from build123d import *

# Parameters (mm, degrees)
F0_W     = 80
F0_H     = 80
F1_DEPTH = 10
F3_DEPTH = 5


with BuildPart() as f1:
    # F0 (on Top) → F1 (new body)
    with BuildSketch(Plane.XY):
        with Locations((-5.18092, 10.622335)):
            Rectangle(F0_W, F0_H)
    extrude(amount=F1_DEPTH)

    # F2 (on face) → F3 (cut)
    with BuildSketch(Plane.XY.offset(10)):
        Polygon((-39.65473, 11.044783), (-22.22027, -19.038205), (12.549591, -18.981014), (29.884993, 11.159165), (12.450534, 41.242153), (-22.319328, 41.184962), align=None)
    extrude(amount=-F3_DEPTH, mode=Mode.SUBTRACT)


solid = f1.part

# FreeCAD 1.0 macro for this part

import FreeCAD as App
import Part
import Sketcher
Q = App.Units.Quantity


def add_polygon(sketch, points):
    """Adds a closed chain of lines whose ends are joined by coincident constraints."""
    first, n = sketch.GeometryCount, len(points)
    for a, b in zip(points, points[1:] + points[:1]):
        sketch.addGeometry(Part.LineSegment(App.Vector(*a, 0), App.Vector(*b, 0)), False)
    for i in range(n):
        sketch.addConstraint(Sketcher.Constraint("Coincident", first + i, 2, first + (i + 1) % n, 1))

doc = App.newDocument("Part")
body = doc.addObject("PartDesign::Body", "Body")

# Sketch on XY plane
sketch1 = body.newObject("Sketcher::SketchObject", "Sketch")
sketch1.AttachmentSupport = (doc.getObject("XY_Plane"), [""])
sketch1.MapMode = "FlatFace"
add_polygon(sketch1, [(-45.18092, 50.622335), (-45.18092, -29.377665), (34.81908, -29.377665), (34.81908, 50.622335)])  # lines 0-3
sketch1.addConstraint([
    Sketcher.Constraint("Vertical", 0),
    Sketcher.Constraint("Horizontal", 1),
    Sketcher.Constraint("Vertical", 2),
    Sketcher.Constraint("Horizontal", 3),
    Sketcher.Constraint("Equal", 3, 0),
    Sketcher.Constraint("DistanceX", 1, 1, 1, 2, Q("80 mm")),
    Sketcher.Constraint("DistanceX", 0, 2, -1, 1, Q("45.18092 mm")),
    Sketcher.Constraint("DistanceY", 0, 2, -1, 1, Q("29.377665 mm")),
])
pad1 = body.newObject("PartDesign::Pad", "Pad")
pad1.Profile = sketch1
pad1.Length = 10

# Sketch on XY plane
sketch2 = body.newObject("Sketcher::SketchObject", "Sketch001")
sketch2.AttachmentSupport = (doc.getObject("XY_Plane"), [""])
sketch2.MapMode = "FlatFace"
sketch2.AttachmentOffset = App.Placement(App.Vector(0, 0, 10), App.Rotation())
add_polygon(sketch2, [(-39.65473, 11.044783), (-22.22027, -19.038205), (12.549591, -18.981014), (29.884993, 11.159165), (12.450534, 41.242153), (-22.319328, 41.184962)])  # lines 0-5
sketch2.addConstraint([
    Sketcher.Constraint("Parallel", 0, 3),
    Sketcher.Constraint("Parallel", 1, 4),
    Sketcher.Constraint("Parallel", 2, 5),
    Sketcher.Constraint("Equal", 0, 1),
    Sketcher.Constraint("Equal", 1, 2),
    Sketcher.Constraint("Equal", 2, 3),
    Sketcher.Constraint("Distance", 0, Q("34.769909 mm")),
    Sketcher.Constraint("DistanceX", 0, 2, -1, 1, Q("22.22027 mm")),
    Sketcher.Constraint("DistanceX", 5, 2, -1, 1, Q("39.65473 mm")),
    Sketcher.Constraint("DistanceY", 0, 2, 1, 2, Q("0.057191 mm")),
    Sketcher.Constraint("DistanceY", 1, 2, 2, 2, Q("30.140179 mm")),
    Sketcher.Constraint("DistanceY", 0, 2, -1, 1, Q("19.038205 mm")),
])
pocket1 = body.newObject("PartDesign::Pocket", "Pocket")
pocket1.Profile = sketch2
pocket1.Length = 5

doc.recompute()
